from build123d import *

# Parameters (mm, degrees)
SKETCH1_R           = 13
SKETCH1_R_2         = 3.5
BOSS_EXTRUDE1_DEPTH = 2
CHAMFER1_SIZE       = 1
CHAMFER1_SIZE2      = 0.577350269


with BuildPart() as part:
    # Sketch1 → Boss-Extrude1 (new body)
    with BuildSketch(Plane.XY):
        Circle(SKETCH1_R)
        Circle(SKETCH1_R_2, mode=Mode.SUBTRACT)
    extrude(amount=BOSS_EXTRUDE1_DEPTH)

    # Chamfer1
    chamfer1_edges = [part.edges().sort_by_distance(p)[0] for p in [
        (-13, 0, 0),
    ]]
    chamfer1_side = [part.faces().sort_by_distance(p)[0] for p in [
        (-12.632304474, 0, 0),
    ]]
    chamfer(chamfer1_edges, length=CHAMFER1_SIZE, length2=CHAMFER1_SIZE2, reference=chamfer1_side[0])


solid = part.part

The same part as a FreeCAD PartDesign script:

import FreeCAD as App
import Part
import Sketcher


def edges_at(feature, points):
    """Names of the edges that pass closest to the given points."""
    edges = feature.Shape.Edges
    near = lambda p: min(range(len(edges)), key=lambda i: edges[i].distToShape(Part.Vertex(*p))[0])
    return sorted({f"Edge{near(p) + 1}" for p in points})

doc = App.newDocument("Part")
body = doc.addObject("PartDesign::Body", "Body")

# Sketch on XY plane
sketch1 = body.newObject("Sketcher::SketchObject", "Sketch")
sketch1.AttachmentSupport = (doc.getObject("XY_Plane"), [""])
sketch1.MapMode = "FlatFace"
sketch1.addGeometry(Part.Circle(App.Vector(0, 0, 0), App.Vector(0, 0, 1), 13), False)
sketch1.addGeometry(Part.Circle(App.Vector(0, 0, 0), App.Vector(0, 0, 1), 3.5), False)
sketch1.addConstraint(Sketcher.Constraint("Coincident", 0, 3, -1, 1))
sketch1.addConstraint(Sketcher.Constraint("Coincident", 1, 3, -1, 1))
sketch1.addConstraint(Sketcher.Constraint("Diameter", 0, 26.0))
sketch1.addConstraint(Sketcher.Constraint("Diameter", 1, 7.0))
pad1 = body.newObject("PartDesign::Pad", "Pad")
pad1.Profile = sketch1
pad1.Length = 2
doc.recompute()

chamfer = body.newObject("PartDesign::Chamfer", "Chamfer")
chamfer.Base = (pad1, edges_at(pad1, [(-13, 0, 0)]))
chamfer.ChamferType = "Two distances"
chamfer.Size = 1
chamfer.Size2 = 0.57735
chamfer.FlipDirection = True

doc.recompute()
